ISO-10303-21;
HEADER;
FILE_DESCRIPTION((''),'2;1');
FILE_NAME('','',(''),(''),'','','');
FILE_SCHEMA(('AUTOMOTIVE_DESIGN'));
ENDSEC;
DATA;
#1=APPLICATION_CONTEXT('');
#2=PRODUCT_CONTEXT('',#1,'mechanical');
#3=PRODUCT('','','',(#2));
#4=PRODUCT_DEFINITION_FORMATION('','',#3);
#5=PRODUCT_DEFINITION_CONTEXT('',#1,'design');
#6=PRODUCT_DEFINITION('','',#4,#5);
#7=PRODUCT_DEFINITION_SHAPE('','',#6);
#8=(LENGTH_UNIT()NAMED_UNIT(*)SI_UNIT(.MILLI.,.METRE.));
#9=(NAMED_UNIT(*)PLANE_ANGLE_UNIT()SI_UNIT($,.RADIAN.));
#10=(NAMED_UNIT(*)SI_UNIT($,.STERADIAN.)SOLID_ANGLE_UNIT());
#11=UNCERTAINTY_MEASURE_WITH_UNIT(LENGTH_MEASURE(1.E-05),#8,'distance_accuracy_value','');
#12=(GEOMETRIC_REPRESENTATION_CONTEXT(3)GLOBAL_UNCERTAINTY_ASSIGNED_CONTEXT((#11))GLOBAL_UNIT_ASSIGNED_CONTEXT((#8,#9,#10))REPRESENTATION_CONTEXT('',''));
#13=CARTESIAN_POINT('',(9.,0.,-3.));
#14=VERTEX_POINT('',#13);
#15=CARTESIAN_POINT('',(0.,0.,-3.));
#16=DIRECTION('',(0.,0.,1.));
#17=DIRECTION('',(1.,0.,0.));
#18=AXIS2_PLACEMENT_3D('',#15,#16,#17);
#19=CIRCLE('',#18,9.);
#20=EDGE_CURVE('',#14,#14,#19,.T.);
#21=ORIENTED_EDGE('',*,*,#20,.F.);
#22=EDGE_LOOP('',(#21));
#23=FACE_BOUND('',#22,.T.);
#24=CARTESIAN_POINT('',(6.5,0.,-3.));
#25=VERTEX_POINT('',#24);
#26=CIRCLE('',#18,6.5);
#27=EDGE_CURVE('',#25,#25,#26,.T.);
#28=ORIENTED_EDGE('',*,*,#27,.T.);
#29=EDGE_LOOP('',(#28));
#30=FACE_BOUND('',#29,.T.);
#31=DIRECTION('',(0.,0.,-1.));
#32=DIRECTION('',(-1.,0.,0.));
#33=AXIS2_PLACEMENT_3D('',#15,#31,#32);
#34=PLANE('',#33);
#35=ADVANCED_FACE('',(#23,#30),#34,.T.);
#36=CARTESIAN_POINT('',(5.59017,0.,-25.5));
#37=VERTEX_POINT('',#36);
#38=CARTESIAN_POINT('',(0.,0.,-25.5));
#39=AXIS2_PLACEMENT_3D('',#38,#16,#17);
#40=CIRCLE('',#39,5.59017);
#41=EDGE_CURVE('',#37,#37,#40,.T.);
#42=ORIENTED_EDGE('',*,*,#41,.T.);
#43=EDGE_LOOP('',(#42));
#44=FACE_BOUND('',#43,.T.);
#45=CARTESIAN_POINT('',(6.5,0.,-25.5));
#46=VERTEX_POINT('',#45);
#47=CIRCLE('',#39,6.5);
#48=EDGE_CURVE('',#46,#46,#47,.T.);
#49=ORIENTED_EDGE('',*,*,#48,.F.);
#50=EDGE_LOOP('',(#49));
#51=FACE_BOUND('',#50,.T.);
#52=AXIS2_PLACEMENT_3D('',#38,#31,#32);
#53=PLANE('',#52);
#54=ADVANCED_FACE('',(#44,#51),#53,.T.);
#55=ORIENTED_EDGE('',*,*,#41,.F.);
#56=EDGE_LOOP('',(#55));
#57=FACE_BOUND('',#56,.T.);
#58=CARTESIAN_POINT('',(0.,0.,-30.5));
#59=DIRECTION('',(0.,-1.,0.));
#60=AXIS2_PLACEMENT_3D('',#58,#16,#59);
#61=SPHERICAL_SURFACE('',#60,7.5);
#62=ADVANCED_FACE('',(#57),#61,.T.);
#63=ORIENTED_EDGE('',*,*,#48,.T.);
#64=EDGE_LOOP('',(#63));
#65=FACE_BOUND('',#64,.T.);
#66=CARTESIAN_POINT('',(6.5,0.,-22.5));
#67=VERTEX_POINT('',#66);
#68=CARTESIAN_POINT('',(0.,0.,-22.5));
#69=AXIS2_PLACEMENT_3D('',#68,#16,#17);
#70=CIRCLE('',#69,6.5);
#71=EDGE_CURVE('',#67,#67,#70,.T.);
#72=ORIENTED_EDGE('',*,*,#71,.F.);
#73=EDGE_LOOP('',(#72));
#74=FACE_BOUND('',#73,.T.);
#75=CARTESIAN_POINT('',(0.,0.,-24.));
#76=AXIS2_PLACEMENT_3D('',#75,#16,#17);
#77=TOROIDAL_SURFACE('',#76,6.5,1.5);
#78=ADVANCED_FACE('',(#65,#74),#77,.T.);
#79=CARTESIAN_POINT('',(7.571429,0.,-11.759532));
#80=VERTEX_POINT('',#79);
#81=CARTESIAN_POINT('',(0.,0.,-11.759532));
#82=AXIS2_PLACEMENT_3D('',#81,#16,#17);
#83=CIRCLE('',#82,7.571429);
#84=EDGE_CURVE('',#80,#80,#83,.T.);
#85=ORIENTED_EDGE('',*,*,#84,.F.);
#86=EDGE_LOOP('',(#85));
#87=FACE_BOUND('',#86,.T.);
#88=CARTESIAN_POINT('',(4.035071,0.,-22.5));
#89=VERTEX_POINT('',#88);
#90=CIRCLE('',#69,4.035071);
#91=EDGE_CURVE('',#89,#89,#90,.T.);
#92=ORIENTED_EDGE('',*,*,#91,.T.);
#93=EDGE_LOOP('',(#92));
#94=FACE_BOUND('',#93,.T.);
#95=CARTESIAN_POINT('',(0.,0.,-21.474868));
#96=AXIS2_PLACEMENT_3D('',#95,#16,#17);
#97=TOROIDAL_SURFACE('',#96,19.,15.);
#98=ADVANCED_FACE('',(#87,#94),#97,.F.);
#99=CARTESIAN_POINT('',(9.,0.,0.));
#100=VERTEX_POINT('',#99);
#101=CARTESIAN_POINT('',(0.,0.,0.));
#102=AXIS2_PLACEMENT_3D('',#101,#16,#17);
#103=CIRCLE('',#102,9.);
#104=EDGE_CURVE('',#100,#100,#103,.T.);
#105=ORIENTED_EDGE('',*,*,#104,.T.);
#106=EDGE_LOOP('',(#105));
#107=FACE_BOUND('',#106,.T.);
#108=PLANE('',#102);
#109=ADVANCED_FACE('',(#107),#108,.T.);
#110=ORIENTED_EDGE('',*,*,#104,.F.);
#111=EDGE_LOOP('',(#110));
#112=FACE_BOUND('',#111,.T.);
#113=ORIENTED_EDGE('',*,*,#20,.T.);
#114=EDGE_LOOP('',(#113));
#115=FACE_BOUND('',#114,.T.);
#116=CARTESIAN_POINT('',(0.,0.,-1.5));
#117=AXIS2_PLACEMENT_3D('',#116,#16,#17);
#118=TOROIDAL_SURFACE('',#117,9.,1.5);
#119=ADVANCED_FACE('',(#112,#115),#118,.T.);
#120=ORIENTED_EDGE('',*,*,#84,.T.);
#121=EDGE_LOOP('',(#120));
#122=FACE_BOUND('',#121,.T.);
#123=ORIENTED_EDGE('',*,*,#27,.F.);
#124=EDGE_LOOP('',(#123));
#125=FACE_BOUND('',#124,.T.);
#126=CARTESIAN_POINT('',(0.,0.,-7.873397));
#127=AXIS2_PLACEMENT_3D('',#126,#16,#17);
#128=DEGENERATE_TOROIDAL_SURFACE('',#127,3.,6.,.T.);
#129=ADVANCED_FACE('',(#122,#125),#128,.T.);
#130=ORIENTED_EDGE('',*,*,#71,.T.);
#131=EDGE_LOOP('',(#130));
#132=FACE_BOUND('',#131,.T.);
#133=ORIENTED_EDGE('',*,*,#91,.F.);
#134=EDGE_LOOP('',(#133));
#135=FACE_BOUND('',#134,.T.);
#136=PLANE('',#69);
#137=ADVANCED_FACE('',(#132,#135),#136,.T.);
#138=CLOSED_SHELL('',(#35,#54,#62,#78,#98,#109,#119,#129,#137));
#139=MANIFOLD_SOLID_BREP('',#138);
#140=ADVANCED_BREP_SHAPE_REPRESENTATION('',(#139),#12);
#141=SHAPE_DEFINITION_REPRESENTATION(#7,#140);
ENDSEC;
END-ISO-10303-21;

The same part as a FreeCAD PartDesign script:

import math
import FreeCAD as App
import Part
import Sketcher
from FreeCAD import Vector

doc = App.newDocument("Part")
params = doc.addObject("Spreadsheet::Sheet", "Params")
for row, (alias, value) in enumerate([
    ("sketch1_radius", "6 mm"),
    ("sketch1_radius2", "15 mm"),
    ("sketch1_radius3", "1.5 mm"),
    ("sketch1_radius4", "7.5 mm"),
    ("sketch1_width", "9 mm"),
    ("revolution_angle", "360 deg"),
], start=1):
    params.set(f"A{row}", alias)
    params.set(f"B{row}", "=" + value)
    params.setAlias(f"B{row}", alias)

body = doc.addObject("PartDesign::Body", "Body")

# Sketch on YZ plane
sketch1 = doc.addObject("Sketcher::SketchObject", "Sketch")
body.addObject(sketch1)
sketch1.AttachmentSupport = (doc.YZ_Plane, [""])
sketch1.MapMode = "FlatFace"
sketch1.addGeometry(Part.LineSegment(Vector(0, 0, 0), Vector(-9, 0, 0)), False)
sketch1.addGeometry(Part.ArcOfCircle(Part.Circle(Vector(-9, -1.5, 0), Vector(0, 0, 1), 1.5), math.radians(90), math.radians(270)), False)
sketch1.addGeometry(Part.LineSegment(Vector(-9, -3, 0), Vector(-6.5, -3, 0)), False)
sketch1.addGeometry(Part.ArcOfCircle(Part.Circle(Vector(-3, -7.873397, 0), Vector(0, 0, 1), 6), math.radians(125.685335), math.radians(220.367594)), False)
sketch1.addGeometry(Part.ArcOfCircle(Part.Circle(Vector(-19, -21.474868, 0), Vector(0, 0, 1), 15), math.radians(-3.918772), math.radians(40.367594)), False)
sketch1.addGeometry(Part.LineSegment(Vector(-4.035071, -22.5, 0), Vector(-6.5, -22.5, 0)), False)
sketch1.addGeometry(Part.ArcOfCircle(Part.Circle(Vector(-6.5, -24, 0), Vector(0, 0, 1), 1.5), math.radians(90), math.radians(270)), False)
sketch1.addGeometry(Part.LineSegment(Vector(-6.5, -25.5, 0), Vector(-5.59017, -25.5, 0)), False)
sketch1.addGeometry(Part.ArcOfCircle(Part.Circle(Vector(0, -30.5, 0), Vector(0, 0, 1), 7.5), math.radians(138.189685), math.radians(270)), False)
sketch1.addGeometry(Part.LineSegment(Vector(0, -38, 0), Vector(0, 0, 0)), False)
sketch1.addConstraint(Sketcher.Constraint("Tangent", 0, 2, 1, 1))
sketch1.addConstraint(Sketcher.Constraint("Tangent", 1, 2, 2, 1))
sketch1.addConstraint(Sketcher.Constraint("Coincident", 2, 2, 3, 1))
sketch1.addConstraint(Sketcher.Constraint("Tangent", 3, 2, 4, 2))
sketch1.addConstraint(Sketcher.Constraint("Coincident", 4, 1, 5, 1))
sketch1.addConstraint(Sketcher.Constraint("Tangent", 5, 2, 6, 1))
sketch1.addConstraint(Sketcher.Constraint("Tangent", 6, 2, 7, 1))
sketch1.addConstraint(Sketcher.Constraint("Coincident", 7, 2, 8, 1))
sketch1.addConstraint(Sketcher.Constraint("Coincident", 8, 2, 9, 1))
sketch1.addConstraint(Sketcher.Constraint("Coincident", 9, 2, 0, 1))
sketch1.addConstraint(Sketcher.Constraint("Horizontal", 0))
sketch1.addConstraint(Sketcher.Constraint("Horizontal", 2))
sketch1.addConstraint(Sketcher.Constraint("Horizontal", 5))
sketch1.addConstraint(Sketcher.Constraint("Horizontal", 7))
sketch1.addConstraint(Sketcher.Constraint("Vertical", 9))
sketch1.addConstraint(Sketcher.Constraint("Coincident", 9, 2, -1, 1))
sketch1.addConstraint(Sketcher.Constraint("Equal", 1, 6))
sketch1.addConstraint(Sketcher.Constraint("PointOnObject", 8, 3, -2))
sketch1.addConstraint(Sketcher.Constraint("Vertical", 6, 3, 2, 2))
sketch1.addConstraint(Sketcher.Constraint("Radius", 3, 6.0))
sketch1.addConstraint(Sketcher.Constraint("Radius", 4, 15.0))
sketch1.addConstraint(Sketcher.Constraint("Radius", 1, 1.5))
sketch1.addConstraint(Sketcher.Constraint("Radius", 8, 7.5))
sketch1.addConstraint(Sketcher.Constraint("DistanceX", 0, 2, 0, 1, 9.0))
sketch1.addConstraint(Sketcher.Constraint("DistanceY", 9, 1, 9, 2, 38.0))
sketch1.addConstraint(Sketcher.Constraint("DistanceX", 2, 1, 2, 2, 2.5))
sketch1.addConstraint(Sketcher.Constraint("DistanceX", 3, 3, -1, 1, 3.0))
sketch1.addConstraint(Sketcher.Constraint("DistanceX", 4, 3, -1, 1, 19.0))
sketch1.addConstraint(Sketcher.Constraint("DistanceY", 6, 3, -1, 1, 24.0))
sketch1.setExpression("Constraints[19]", "Params.sketch1_radius")
sketch1.setExpression("Constraints[20]", "Params.sketch1_radius2")
sketch1.setExpression("Constraints[21]", "Params.sketch1_radius3")
sketch1.setExpression("Constraints[22]", "Params.sketch1_radius4")
sketch1.setExpression("Constraints[23]", "Params.sketch1_width")
revolution = doc.addObject("PartDesign::Revolution", "Revolution")
body.addObject(revolution)
revolution.Profile = sketch1
revolution.ReferenceAxis = (sketch1, ["V_Axis"])
revolution.setExpression("Angle", "Params.revolution_angle")

doc.recompute()
